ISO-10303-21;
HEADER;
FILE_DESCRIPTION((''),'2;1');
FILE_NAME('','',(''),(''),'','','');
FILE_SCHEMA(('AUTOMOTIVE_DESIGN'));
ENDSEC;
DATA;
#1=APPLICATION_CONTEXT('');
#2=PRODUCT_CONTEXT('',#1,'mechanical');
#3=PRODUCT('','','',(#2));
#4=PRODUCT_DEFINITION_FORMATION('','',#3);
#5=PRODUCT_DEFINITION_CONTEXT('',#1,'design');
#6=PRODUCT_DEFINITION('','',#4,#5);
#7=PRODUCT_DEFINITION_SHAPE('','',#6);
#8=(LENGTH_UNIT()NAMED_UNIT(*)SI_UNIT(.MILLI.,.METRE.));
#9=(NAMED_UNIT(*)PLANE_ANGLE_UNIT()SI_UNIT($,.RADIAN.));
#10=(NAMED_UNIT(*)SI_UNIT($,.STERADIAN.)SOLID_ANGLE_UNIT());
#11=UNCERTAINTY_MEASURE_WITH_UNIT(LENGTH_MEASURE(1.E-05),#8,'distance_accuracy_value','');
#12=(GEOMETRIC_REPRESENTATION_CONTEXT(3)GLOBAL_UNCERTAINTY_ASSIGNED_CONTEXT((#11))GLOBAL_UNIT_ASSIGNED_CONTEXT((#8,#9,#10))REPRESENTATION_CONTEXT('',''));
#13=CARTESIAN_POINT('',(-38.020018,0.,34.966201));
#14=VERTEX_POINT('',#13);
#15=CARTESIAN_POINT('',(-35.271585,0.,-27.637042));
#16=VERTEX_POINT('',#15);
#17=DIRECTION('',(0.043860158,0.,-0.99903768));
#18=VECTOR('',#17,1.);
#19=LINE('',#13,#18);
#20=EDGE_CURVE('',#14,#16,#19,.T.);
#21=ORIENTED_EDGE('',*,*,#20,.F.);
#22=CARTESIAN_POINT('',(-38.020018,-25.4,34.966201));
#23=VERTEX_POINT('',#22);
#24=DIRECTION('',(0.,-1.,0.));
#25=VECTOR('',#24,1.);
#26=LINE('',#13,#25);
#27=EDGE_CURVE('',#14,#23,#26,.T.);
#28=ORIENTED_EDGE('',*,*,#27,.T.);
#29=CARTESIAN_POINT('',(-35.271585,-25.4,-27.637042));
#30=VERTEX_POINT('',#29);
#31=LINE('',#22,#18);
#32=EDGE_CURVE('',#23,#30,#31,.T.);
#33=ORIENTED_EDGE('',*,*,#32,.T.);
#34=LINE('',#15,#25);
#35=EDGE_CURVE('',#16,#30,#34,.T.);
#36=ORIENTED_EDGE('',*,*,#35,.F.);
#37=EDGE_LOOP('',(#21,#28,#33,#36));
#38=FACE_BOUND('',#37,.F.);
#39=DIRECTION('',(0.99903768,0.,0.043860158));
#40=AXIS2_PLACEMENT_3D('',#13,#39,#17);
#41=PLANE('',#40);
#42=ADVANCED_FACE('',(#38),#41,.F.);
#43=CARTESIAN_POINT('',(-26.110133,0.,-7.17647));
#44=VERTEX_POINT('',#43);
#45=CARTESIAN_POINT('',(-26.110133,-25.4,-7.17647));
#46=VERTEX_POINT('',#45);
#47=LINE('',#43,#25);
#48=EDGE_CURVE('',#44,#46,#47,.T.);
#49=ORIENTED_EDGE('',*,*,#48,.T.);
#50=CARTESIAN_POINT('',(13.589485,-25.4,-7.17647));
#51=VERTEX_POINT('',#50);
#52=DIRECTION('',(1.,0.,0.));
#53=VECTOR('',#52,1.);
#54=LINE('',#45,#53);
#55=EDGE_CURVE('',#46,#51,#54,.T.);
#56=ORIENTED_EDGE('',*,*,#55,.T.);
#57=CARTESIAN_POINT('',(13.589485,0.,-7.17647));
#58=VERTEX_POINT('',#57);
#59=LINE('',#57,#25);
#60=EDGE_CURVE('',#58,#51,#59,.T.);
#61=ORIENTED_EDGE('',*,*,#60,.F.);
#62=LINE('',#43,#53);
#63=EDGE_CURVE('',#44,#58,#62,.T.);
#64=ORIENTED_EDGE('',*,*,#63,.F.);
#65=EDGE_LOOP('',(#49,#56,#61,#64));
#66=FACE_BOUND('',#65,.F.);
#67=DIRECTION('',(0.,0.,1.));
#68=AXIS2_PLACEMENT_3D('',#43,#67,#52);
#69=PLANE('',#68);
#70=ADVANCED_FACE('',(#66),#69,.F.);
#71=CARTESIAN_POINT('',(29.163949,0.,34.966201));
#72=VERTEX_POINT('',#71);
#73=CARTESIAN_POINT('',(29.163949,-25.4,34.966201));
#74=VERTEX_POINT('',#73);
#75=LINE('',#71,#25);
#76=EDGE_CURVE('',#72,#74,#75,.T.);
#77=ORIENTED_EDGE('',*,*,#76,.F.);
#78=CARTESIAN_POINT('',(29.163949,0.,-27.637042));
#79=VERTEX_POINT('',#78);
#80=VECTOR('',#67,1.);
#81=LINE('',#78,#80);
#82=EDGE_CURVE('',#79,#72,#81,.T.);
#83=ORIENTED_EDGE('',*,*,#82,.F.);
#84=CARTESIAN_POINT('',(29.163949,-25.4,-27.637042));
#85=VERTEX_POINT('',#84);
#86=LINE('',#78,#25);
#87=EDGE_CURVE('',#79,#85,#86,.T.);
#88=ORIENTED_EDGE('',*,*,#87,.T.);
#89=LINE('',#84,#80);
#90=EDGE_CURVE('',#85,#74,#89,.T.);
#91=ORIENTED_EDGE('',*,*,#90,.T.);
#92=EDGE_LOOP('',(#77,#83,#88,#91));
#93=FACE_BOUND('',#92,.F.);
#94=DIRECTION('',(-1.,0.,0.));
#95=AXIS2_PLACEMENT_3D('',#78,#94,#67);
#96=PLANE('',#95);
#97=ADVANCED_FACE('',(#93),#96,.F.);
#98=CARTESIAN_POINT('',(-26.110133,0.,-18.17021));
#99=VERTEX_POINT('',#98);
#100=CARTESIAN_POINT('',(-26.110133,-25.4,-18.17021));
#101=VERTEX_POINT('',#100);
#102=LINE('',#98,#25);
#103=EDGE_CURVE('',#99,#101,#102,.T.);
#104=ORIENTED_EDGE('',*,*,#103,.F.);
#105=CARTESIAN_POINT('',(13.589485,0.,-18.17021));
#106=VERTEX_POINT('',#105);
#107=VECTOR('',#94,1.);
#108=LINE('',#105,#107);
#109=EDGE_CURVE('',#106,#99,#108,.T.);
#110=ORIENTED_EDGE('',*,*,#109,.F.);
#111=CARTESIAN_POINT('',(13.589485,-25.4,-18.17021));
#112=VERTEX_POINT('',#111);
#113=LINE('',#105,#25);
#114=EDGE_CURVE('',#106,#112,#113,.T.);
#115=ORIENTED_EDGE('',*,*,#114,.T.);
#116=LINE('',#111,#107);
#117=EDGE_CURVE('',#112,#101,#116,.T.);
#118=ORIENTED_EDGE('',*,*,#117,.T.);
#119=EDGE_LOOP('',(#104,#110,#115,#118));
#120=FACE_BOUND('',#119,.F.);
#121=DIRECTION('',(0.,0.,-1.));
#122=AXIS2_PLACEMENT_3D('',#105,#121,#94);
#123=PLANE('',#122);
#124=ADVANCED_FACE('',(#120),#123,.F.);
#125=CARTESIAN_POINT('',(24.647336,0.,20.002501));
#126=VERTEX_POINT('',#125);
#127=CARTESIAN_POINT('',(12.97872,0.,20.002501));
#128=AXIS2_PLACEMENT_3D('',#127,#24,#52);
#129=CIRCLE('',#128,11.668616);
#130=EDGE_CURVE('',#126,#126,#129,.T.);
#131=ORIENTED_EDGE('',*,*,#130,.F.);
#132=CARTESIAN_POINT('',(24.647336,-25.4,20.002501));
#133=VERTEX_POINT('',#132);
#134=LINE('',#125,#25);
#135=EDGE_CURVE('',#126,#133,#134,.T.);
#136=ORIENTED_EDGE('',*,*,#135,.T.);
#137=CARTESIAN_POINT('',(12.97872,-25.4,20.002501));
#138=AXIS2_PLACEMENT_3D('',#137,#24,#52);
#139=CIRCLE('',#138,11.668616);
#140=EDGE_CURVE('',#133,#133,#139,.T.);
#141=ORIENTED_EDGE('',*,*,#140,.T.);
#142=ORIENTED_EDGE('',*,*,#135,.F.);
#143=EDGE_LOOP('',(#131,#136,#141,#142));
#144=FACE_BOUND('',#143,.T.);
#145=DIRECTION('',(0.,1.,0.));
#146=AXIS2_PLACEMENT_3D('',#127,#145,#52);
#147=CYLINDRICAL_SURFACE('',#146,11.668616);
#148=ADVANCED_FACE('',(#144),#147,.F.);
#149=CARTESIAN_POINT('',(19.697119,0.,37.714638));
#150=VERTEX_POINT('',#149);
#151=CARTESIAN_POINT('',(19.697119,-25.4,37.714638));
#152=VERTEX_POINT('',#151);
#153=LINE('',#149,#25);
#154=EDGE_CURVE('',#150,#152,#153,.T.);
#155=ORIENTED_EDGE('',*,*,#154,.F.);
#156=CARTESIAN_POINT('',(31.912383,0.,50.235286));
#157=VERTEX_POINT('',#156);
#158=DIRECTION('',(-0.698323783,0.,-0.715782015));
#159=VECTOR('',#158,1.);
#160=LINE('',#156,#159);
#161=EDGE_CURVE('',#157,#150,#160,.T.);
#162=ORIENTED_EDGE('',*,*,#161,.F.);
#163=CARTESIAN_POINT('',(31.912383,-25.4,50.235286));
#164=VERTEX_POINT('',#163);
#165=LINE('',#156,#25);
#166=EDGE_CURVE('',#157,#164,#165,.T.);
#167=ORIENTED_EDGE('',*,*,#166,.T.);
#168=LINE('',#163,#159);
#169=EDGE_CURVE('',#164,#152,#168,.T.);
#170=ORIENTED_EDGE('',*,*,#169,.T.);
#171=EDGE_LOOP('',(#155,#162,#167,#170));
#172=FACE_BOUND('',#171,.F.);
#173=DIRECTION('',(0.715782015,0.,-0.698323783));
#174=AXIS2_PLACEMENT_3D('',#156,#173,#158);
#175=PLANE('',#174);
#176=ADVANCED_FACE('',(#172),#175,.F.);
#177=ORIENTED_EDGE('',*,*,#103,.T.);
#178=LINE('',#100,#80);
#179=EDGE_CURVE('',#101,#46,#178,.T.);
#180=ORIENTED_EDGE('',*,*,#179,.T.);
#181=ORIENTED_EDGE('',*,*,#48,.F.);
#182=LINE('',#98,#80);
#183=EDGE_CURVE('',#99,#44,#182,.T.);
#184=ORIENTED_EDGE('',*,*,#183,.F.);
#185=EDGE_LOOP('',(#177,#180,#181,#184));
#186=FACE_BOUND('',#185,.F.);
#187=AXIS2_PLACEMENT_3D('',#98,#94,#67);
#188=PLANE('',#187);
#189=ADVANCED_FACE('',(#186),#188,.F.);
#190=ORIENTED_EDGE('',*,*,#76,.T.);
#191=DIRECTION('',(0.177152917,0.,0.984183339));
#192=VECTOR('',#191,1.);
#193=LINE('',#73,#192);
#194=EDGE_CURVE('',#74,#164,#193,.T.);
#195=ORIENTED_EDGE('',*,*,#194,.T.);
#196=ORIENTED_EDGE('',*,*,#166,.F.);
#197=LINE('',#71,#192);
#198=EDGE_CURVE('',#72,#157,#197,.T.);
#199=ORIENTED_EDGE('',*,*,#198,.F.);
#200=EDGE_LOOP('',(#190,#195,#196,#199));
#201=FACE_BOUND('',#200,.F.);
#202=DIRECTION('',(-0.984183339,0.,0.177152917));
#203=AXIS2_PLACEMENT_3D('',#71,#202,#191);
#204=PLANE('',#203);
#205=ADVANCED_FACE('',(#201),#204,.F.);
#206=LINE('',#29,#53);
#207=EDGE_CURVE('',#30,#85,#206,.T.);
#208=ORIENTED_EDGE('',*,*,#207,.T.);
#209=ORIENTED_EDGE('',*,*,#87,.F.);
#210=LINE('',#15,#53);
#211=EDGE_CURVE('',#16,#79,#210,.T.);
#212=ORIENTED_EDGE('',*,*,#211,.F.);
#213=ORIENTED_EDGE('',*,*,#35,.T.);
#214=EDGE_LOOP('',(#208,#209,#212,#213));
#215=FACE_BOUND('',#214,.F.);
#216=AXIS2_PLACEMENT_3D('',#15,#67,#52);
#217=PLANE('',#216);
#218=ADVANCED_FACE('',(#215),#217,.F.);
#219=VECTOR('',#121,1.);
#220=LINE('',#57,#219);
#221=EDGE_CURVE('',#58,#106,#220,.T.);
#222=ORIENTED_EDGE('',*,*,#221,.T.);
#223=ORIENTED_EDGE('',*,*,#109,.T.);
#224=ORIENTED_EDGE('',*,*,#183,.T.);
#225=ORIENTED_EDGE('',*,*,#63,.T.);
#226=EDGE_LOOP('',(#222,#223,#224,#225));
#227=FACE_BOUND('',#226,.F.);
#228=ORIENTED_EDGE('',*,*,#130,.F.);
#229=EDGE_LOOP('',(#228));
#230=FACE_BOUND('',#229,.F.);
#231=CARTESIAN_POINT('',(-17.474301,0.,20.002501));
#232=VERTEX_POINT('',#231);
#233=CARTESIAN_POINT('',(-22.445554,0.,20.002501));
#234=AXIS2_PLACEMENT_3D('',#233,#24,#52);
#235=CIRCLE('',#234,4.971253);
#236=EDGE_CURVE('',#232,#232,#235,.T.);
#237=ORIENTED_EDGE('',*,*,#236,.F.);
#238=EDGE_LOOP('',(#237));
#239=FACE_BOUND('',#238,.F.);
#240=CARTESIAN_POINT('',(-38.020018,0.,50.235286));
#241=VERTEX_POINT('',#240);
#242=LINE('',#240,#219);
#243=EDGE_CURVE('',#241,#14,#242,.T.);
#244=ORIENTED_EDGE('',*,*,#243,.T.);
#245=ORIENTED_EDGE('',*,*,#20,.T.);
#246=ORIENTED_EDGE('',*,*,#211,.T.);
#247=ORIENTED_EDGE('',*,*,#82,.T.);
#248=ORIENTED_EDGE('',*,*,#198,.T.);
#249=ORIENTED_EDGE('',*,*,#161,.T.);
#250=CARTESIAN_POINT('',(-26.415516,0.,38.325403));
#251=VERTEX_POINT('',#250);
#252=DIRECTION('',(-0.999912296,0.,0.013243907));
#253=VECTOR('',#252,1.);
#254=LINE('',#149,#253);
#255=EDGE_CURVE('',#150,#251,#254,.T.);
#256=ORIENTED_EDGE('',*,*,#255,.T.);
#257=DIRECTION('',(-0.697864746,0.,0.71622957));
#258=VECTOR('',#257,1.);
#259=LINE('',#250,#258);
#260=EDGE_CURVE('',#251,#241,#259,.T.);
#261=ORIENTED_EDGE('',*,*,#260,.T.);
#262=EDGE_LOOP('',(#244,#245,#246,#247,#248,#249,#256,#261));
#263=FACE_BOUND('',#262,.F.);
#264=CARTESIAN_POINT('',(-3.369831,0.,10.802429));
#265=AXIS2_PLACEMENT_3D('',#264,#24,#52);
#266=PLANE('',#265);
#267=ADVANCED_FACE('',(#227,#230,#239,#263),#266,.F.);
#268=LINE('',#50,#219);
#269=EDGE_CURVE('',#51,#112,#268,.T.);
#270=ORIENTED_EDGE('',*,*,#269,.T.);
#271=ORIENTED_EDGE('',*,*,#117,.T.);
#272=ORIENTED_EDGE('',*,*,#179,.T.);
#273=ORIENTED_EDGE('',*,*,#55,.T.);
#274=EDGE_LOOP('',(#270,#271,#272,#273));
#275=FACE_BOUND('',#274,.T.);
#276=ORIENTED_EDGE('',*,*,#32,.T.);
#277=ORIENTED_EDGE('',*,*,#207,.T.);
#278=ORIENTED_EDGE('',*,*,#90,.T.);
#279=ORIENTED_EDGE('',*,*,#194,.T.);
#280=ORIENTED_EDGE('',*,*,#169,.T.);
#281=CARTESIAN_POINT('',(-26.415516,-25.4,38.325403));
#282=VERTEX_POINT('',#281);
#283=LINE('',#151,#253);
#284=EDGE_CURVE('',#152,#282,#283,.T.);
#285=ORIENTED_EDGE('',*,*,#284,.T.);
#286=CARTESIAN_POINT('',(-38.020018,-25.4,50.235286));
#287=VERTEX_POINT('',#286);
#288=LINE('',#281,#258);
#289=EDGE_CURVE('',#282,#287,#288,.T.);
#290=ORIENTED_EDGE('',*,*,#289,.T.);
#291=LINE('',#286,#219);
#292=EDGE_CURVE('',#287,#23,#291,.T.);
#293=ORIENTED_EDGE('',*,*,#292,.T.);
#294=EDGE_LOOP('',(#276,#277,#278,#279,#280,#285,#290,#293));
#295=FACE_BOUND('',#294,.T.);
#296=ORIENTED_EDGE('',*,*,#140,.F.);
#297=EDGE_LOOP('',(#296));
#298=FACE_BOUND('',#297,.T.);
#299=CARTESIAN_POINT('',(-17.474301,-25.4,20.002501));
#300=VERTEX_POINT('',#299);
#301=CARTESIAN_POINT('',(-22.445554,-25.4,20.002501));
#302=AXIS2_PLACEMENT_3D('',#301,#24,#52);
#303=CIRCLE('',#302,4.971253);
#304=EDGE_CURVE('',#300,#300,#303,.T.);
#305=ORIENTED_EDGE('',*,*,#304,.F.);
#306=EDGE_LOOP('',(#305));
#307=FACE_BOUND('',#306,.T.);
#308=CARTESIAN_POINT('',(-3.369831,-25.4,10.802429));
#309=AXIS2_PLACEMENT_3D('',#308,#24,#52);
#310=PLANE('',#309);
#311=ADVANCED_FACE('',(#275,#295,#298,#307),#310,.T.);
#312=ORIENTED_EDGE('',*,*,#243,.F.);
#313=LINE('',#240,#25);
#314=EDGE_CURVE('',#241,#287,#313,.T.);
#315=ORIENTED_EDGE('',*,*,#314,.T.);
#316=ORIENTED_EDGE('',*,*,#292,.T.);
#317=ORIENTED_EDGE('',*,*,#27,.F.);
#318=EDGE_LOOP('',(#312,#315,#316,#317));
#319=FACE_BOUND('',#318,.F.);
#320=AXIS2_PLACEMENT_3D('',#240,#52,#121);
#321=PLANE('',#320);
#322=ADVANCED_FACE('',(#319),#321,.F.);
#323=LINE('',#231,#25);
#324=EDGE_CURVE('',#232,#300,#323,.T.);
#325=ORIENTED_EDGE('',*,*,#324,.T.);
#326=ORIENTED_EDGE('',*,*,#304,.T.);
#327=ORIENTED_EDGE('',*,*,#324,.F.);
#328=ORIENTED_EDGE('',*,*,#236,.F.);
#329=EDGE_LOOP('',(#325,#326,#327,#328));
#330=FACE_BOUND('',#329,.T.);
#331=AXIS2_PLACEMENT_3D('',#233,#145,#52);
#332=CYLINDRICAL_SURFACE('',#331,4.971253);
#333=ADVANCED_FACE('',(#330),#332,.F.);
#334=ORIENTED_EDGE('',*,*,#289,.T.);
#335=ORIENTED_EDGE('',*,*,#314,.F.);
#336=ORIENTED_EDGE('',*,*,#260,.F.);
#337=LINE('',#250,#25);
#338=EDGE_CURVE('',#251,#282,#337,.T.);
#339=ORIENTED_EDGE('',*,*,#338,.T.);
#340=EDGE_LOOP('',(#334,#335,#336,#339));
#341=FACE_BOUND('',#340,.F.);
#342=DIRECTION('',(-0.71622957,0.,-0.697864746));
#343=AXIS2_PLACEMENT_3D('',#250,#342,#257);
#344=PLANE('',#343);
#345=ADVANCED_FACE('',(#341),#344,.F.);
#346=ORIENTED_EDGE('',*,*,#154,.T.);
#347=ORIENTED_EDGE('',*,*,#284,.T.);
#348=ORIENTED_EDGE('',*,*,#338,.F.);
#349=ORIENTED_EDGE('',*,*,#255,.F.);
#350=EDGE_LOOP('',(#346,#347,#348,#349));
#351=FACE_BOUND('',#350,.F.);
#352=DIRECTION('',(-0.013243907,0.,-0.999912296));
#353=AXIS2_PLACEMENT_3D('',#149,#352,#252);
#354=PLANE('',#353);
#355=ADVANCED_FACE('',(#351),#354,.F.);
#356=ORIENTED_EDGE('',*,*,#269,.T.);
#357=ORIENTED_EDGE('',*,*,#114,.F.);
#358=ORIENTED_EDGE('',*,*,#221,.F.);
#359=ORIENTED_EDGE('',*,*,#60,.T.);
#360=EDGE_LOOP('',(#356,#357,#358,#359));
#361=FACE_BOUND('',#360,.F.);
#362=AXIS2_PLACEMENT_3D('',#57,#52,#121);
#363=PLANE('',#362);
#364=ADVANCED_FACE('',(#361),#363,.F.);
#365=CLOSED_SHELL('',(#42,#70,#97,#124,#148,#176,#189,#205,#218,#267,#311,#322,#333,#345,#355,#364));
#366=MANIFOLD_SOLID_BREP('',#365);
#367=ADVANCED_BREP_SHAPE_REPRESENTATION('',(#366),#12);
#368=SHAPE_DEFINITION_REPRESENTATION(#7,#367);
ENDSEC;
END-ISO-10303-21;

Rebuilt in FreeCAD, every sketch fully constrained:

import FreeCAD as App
import Part
import Sketcher
Q = App.Units.Quantity

doc = App.newDocument("Part")
params = doc.addObject("Spreadsheet::Sheet", "Params")
for row, (alias, value) in enumerate([
    ("pad1_length", "1 in"),
], start=1):
    params.set(f"A{row}", alias)
    params.set(f"B{row}", "=" + value)
    params.setAlias(f"B{row}", alias)

body = doc.addObject("PartDesign::Body", "Body")

sketch1 = body.newObject("Sketcher::SketchObject", "Sketch")
sketch1.AttachmentSupport = (doc.getObject("XZ_Plane"), [""])
sketch1.MapMode = "FlatFace"
sketch1.addGeometry([
    Part.LineSegment(App.Vector(19.697119, 37.714638, 0), App.Vector(-26.415516, 38.325403, 0)),
    Part.LineSegment(App.Vector(-26.415516, 38.325403, 0), App.Vector(-38.020018, 50.235286, 0)),
    Part.LineSegment(App.Vector(-38.020018, 50.235286, 0), App.Vector(-38.020018, 34.966201, 0)),
    Part.LineSegment(App.Vector(-38.020018, 34.966201, 0), App.Vector(-35.271585, -27.637042, 0)),
    Part.LineSegment(App.Vector(-35.271585, -27.637042, 0), App.Vector(29.163949, -27.637042, 0)),
    Part.LineSegment(App.Vector(29.163949, -27.637042, 0), App.Vector(29.163949, 34.966201, 0)),
    Part.LineSegment(App.Vector(29.163949, 34.966201, 0), App.Vector(31.912383, 50.235286, 0)),
    Part.LineSegment(App.Vector(31.912383, 50.235286, 0), App.Vector(19.697119, 37.714638, 0)),
    Part.LineSegment(App.Vector(-26.110133, -18.17021, 0), App.Vector(-26.110133, -7.17647, 0)),
    Part.LineSegment(App.Vector(-26.110133, -7.17647, 0), App.Vector(13.589485, -7.17647, 0)),
    Part.LineSegment(App.Vector(13.589485, -7.17647, 0), App.Vector(13.589485, -18.17021, 0)),
    Part.LineSegment(App.Vector(13.589485, -18.17021, 0), App.Vector(-26.110133, -18.17021, 0)),
    Part.Circle(App.Vector(-22.445554, 20.002501, 0), App.Vector(0, 0, 1), 4.971253),
    Part.Circle(App.Vector(12.97872, 20.002501, 0), App.Vector(0, 0, 1), 11.668616),
], False)
sketch1.addConstraint([
    Sketcher.Constraint("Coincident", 0, 2, 1, 1),
    Sketcher.Constraint("Coincident", 1, 2, 2, 1),
    Sketcher.Constraint("Coincident", 2, 2, 3, 1),
    Sketcher.Constraint("Coincident", 3, 2, 4, 1),
    Sketcher.Constraint("Coincident", 4, 2, 5, 1),
    Sketcher.Constraint("Coincident", 5, 2, 6, 1),
    Sketcher.Constraint("Coincident", 6, 2, 7, 1),
    Sketcher.Constraint("Coincident", 7, 2, 0, 1),
    Sketcher.Constraint("Coincident", 8, 2, 9, 1),
    Sketcher.Constraint("Coincident", 9, 2, 10, 1),
    Sketcher.Constraint("Coincident", 10, 2, 11, 1),
    Sketcher.Constraint("Coincident", 11, 2, 8, 1),
    Sketcher.Constraint("Vertical", 2),
    Sketcher.Constraint("Horizontal", 4),
    Sketcher.Constraint("Vertical", 5),
    Sketcher.Constraint("Vertical", 8),
    Sketcher.Constraint("Horizontal", 9),
    Sketcher.Constraint("Vertical", 10),
    Sketcher.Constraint("Horizontal", 11),
    Sketcher.Constraint("Horizontal", 12, 3, 13, 3),
    Sketcher.Constraint("Horizontal", 2, 2, 5, 2),
    Sketcher.Constraint("Horizontal", 1, 2, 6, 2),
    Sketcher.Constraint("Diameter", 13, 23.337232),
    Sketcher.Constraint("Diameter", 12, 9.942506),
    Sketcher.Constraint("DistanceY", -1, 1, 12, 3, Q("0.7875 in")),
    Sketcher.Constraint("DistanceY", 8, 1, 8, 2, 10.99374),
    Sketcher.Constraint("DistanceY", -1, 1, 2, 2, 34.966201),
    Sketcher.Constraint("DistanceX", 0, 2, 6, 2, 58.327899),
    Sketcher.Constraint("DistanceX", 1, 2, 6, 2, 69.932401),
    Sketcher.Constraint("DistanceX", 13, 3, 7, 2, 6.718399),
    Sketcher.Constraint("Distance", 0, 46.11668),
    Sketcher.Constraint("DistanceX", 4, 1, 4, 2, 64.435534),
    Sketcher.Constraint("DistanceX", 9, 1, 9, 2, 39.699618),
    Sketcher.Constraint("DistanceY", 2, 2, 2, 1, 15.269085),
    Sketcher.Constraint("DistanceY", 5, 1, 5, 2, 62.603243),
    Sketcher.Constraint("DistanceX", -1, 1, 13, 3, 12.97872),
    Sketcher.Constraint("DistanceX", -1, 1, 4, 2, 29.163949),
    Sketcher.Constraint("DistanceY", 8, 2, -1, 1, 7.17647),
    Sketcher.Constraint("DistanceX", 0, 2, 12, 3, 3.969962),
    Sketcher.Constraint("DistanceX", 1, 2, 13, 3, 50.998738),
    Sketcher.Constraint("DistanceY", 7, 2, 6, 2, 12.520648),
    Sketcher.Constraint("DistanceX", 8, 2, 12, 3, 3.664579),
])
pad1 = body.newObject("PartDesign::Pad", "Pad")
pad1.Profile = sketch1
pad1.setExpression("Length", "Params.pad1_length")

doc.recompute()
